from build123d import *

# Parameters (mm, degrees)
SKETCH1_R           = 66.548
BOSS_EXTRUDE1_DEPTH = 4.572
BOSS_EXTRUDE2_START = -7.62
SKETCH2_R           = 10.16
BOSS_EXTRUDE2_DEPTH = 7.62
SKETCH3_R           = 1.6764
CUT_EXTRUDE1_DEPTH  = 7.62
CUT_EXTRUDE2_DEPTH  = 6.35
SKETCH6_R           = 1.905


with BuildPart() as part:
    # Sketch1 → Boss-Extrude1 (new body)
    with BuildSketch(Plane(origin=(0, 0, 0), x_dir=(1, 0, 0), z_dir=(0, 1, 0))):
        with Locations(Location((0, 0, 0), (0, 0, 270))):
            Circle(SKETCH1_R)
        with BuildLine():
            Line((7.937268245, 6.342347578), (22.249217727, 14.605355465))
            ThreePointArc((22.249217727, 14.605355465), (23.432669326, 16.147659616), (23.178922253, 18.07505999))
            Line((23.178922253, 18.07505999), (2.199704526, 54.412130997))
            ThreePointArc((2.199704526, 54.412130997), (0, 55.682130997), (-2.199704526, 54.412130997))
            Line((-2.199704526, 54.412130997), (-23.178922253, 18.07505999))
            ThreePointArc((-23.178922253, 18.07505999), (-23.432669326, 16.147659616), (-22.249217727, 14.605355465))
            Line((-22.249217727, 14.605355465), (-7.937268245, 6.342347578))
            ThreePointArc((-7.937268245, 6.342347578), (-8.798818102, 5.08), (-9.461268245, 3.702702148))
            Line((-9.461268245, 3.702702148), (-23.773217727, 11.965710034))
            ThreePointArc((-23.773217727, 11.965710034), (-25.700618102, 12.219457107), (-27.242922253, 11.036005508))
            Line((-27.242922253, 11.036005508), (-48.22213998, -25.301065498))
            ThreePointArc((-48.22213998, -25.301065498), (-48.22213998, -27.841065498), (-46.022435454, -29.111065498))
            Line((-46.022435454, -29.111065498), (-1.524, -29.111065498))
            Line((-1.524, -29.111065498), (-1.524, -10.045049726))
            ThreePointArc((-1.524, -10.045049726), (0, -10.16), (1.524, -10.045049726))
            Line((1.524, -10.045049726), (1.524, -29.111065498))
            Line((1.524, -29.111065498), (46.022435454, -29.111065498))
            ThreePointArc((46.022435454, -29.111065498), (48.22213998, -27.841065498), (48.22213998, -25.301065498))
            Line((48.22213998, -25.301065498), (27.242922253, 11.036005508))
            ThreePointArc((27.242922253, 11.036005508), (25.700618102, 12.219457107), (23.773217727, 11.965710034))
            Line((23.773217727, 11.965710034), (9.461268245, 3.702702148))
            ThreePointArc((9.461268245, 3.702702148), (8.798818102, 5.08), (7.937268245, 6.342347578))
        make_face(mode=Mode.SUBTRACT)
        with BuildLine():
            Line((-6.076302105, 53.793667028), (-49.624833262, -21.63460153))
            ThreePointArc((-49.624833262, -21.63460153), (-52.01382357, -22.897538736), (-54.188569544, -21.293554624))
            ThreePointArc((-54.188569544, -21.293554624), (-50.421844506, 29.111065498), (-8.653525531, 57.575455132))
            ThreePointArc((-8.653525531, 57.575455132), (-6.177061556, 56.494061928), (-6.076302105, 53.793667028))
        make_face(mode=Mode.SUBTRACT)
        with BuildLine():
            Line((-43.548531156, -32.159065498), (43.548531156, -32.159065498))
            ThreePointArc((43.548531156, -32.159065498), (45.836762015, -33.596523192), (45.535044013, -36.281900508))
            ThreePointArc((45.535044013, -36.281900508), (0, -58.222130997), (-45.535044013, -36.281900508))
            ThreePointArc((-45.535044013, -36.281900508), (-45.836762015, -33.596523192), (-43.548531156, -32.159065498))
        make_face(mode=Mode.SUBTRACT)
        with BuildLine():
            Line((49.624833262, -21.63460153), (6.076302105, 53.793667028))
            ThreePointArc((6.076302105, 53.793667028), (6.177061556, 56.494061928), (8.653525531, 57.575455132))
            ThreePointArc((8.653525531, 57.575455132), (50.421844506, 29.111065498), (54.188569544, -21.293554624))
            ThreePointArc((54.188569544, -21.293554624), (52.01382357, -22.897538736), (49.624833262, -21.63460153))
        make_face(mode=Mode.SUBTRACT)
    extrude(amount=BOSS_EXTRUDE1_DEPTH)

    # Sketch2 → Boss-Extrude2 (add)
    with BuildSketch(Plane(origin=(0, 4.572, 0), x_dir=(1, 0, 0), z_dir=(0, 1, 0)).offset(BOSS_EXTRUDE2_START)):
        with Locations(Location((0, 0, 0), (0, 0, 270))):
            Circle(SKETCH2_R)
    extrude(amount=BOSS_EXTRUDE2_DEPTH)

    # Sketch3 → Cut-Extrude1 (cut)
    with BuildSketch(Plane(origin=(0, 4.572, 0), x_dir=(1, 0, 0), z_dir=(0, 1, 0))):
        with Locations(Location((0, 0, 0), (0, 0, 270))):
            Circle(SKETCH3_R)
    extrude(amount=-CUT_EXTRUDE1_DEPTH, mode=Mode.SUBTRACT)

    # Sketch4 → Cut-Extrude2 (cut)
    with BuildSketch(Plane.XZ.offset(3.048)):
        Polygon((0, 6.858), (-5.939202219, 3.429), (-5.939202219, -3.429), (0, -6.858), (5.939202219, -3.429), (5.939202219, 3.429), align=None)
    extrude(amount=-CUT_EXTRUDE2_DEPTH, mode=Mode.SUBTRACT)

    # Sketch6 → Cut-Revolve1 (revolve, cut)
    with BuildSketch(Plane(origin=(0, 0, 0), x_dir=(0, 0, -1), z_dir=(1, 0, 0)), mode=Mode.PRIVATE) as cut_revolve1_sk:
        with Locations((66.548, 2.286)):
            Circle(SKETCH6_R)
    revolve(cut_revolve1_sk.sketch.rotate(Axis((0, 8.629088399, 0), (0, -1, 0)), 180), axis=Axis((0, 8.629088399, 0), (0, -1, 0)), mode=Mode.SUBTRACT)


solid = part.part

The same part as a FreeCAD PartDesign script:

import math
import FreeCAD as App
import Part
import Sketcher
from FreeCAD import Vector
Q = App.Units.Quantity

doc = App.newDocument("Part")
body = doc.addObject("PartDesign::Body", "Body")

sketch1 = body.newObject("Sketcher::SketchObject", "Sketch")
sketch1.AttachmentSupport = (doc.getObject("XZ_Plane"), [""])
sketch1.MapMode = "FlatFace"
sketch1.addGeometry([
    Part.Circle(Vector(0, 0, 0), Vector(0, 0, 1), 66.5),
    Part.ArcOfCircle(Part.Circle(Vector(-8.3, -55.1, 0), Vector(0, 0, 1), 2.5), math.radians(-99), math.radians(30)),
    Part.LineSegment(Vector(-6.1, -53.8, 0), Vector(-49.6, 21.6, 0)),
    Part.ArcOfCircle(Part.Circle(Vector(-51.8, 20.4, 0), Vector(0, 0, 1), 2.5), math.radians(30), math.radians(159)),
    Part.ArcOfCircle(Part.Circle(Vector(0, 0, 0), Vector(0, 0, 1), 58.2), math.radians(159), math.radians(261)),
    Part.LineSegment(Vector(22.2, -14.6, 0), Vector(7.9, -6.3, 0)),
    Part.ArcOfCircle(Part.Circle(Vector(0, 0, 0), Vector(0, 0, 1), 10.2), math.radians(-38.63), math.radians(-21.37)),
    Part.LineSegment(Vector(9.5, -3.7, 0), Vector(23.8, -12, 0)),
    Part.ArcOfCircle(Part.Circle(Vector(25, -9.8, 0), Vector(0, 0, 1), 2.5), math.radians(-120), math.radians(-30)),
    Part.LineSegment(Vector(27.2, -11, 0), Vector(48.2, 25.3, 0)),
    Part.ArcOfCircle(Part.Circle(Vector(46, 26.6, 0), Vector(0, 0, 1), 2.5), math.radians(-30), math.radians(90)),
    Part.LineSegment(Vector(46, 29.1, 0), Vector(1.5, 29.1, 0)),
    Part.LineSegment(Vector(1.5, 29.1, 0), Vector(1.5, 10, 0)),
    Part.ArcOfCircle(Part.Circle(Vector(0, 0, 0), Vector(0, 0, 1), 10.2), math.radians(81.37), math.radians(98.63)),
    Part.LineSegment(Vector(-1.5, 10, 0), Vector(-1.5, 29.1, 0)),
    Part.LineSegment(Vector(-1.5, 29.1, 0), Vector(-46, 29.1, 0)),
    Part.ArcOfCircle(Part.Circle(Vector(-46, 26.6, 0), Vector(0, 0, 1), 2.5), math.radians(90), math.radians(210)),
    Part.LineSegment(Vector(-48.2, 25.3, 0), Vector(-27.2, -11, 0)),
    Part.ArcOfCircle(Part.Circle(Vector(-25, -9.8, 0), Vector(0, 0, 1), 2.5), math.radians(-150), math.radians(-60)),
    Part.LineSegment(Vector(-23.8, -12, 0), Vector(-9.5, -3.7, 0)),
    Part.ArcOfCircle(Part.Circle(Vector(0, 0, 0), Vector(0, 0, 1), 10.2), math.radians(-158.63), math.radians(-141.37)),
    Part.LineSegment(Vector(-7.9, -6.3, 0), Vector(-22.2, -14.6, 0)),
    Part.ArcOfCircle(Part.Circle(Vector(-21, -16.8, 0), Vector(0, 0, 1), 2.5), math.radians(120), math.radians(210)),
    Part.LineSegment(Vector(-23.2, -18.1, 0), Vector(-2.2, -54.4, 0)),
    Part.ArcOfCircle(Part.Circle(Vector(0, -53.1, 0), Vector(0, 0, 1), 2.5), math.radians(-150), math.radians(-30)),
    Part.LineSegment(Vector(2.2, -54.4, 0), Vector(23.2, -18.1, 0)),
    Part.ArcOfCircle(Part.Circle(Vector(21, -16.8, 0), Vector(0, 0, 1), 2.5), math.radians(-30), math.radians(60)),
    Part.ArcOfCircle(Part.Circle(Vector(51.8, 20.4, 0), Vector(0, 0, 1), 2.5), math.radians(21), math.radians(150)),
    Part.LineSegment(Vector(49.6, 21.6, 0), Vector(6.1, -53.8, 0)),
    Part.ArcOfCircle(Part.Circle(Vector(8.3, -55.1, 0), Vector(0, 0, 1), 2.5), math.radians(150), math.radians(279)),
    Part.ArcOfCircle(Part.Circle(Vector(0, 0, 0), Vector(0, 0, 1), 58.2), math.radians(-81), math.radians(21)),
    Part.ArcOfCircle(Part.Circle(Vector(-43.5, 34.7, 0), Vector(0, 0, 1), 2.5), math.radians(141), math.radians(270)),
    Part.LineSegment(Vector(-43.5, 32.2, 0), Vector(43.5, 32.2, 0)),
    Part.ArcOfCircle(Part.Circle(Vector(43.5, 34.7, 0), Vector(0, 0, 1), 2.5), math.radians(-90), math.radians(39)),
    Part.ArcOfCircle(Part.Circle(Vector(0, 0, 0), Vector(0, 0, 1), 58.2), math.radians(39), math.radians(141)),
], False)
sketch1.addConstraint([
    Sketcher.Constraint("Tangent", 1, 2, 2, 1),
    Sketcher.Constraint("Tangent", 2, 2, 3, 1),
    Sketcher.Constraint("Tangent", 3, 2, 4, 1),
    Sketcher.Constraint("Tangent", 4, 2, 1, 1),
    Sketcher.Constraint("Coincident", 5, 2, 6, 1),
    Sketcher.Constraint("Coincident", 6, 2, 7, 1),
    Sketcher.Constraint("Tangent", 7, 2, 8, 1),
    Sketcher.Constraint("Tangent", 8, 2, 9, 1),
    Sketcher.Constraint("Tangent", 9, 2, 10, 1),
    Sketcher.Constraint("Tangent", 10, 2, 11, 1),
    Sketcher.Constraint("Coincident", 11, 2, 12, 1),
    Sketcher.Constraint("Coincident", 12, 2, 13, 1),
    Sketcher.Constraint("Coincident", 13, 2, 14, 1),
    Sketcher.Constraint("Coincident", 14, 2, 15, 1),
    Sketcher.Constraint("Tangent", 15, 2, 16, 1),
    Sketcher.Constraint("Tangent", 16, 2, 17, 1),
    Sketcher.Constraint("Tangent", 17, 2, 18, 1),
    Sketcher.Constraint("Tangent", 18, 2, 19, 1),
    Sketcher.Constraint("Coincident", 19, 2, 20, 1),
    Sketcher.Constraint("Coincident", 20, 2, 21, 1),
    Sketcher.Constraint("Tangent", 21, 2, 22, 1),
    Sketcher.Constraint("Tangent", 22, 2, 23, 1),
    Sketcher.Constraint("Tangent", 23, 2, 24, 1),
    Sketcher.Constraint("Tangent", 24, 2, 25, 1),
    Sketcher.Constraint("Tangent", 25, 2, 26, 1),
    Sketcher.Constraint("Tangent", 26, 2, 5, 1),
    Sketcher.Constraint("Tangent", 27, 2, 28, 1),
    Sketcher.Constraint("Tangent", 28, 2, 29, 1),
    Sketcher.Constraint("Tangent", 29, 2, 30, 1),
    Sketcher.Constraint("Tangent", 30, 2, 27, 1),
    Sketcher.Constraint("Tangent", 31, 2, 32, 1),
    Sketcher.Constraint("Tangent", 32, 2, 33, 1),
    Sketcher.Constraint("Tangent", 33, 2, 34, 1),
    Sketcher.Constraint("Tangent", 34, 2, 31, 1),
    Sketcher.Constraint("Horizontal", 11),
    Sketcher.Constraint("Vertical", 12),
    Sketcher.Constraint("Vertical", 14),
    Sketcher.Constraint("Horizontal", 15),
    Sketcher.Constraint("Horizontal", 32),
    Sketcher.Constraint("Coincident", 0, 3, -1, 1),
    Sketcher.Constraint("Coincident", 4, 3, -1, 1),
    Sketcher.Constraint("Coincident", 6, 3, -1, 1),
    Sketcher.Constraint("Coincident", 13, 3, -1, 1),
    Sketcher.Constraint("Coincident", 20, 3, -1, 1),
    Sketcher.Constraint("Coincident", 30, 3, -1, 1),
    Sketcher.Constraint("Coincident", 34, 3, -1, 1),
    Sketcher.Constraint("Equal", 1, 3),
    Sketcher.Constraint("Equal", 3, 8),
    Sketcher.Constraint("Equal", 8, 10),
    Sketcher.Constraint("Equal", 6, 13),
    Sketcher.Constraint("Equal", 10, 16),
    Sketcher.Constraint("Equal", 16, 18),
    Sketcher.Constraint("Equal", 13, 20),
    Sketcher.Constraint("Equal", 18, 22),
    Sketcher.Constraint("Equal", 22, 24),
    Sketcher.Constraint("Equal", 24, 26),
    Sketcher.Constraint("Equal", 26, 27),
    Sketcher.Constraint("Equal", 27, 29),
    Sketcher.Constraint("Equal", 4, 30),
    Sketcher.Constraint("Equal", 29, 31),
    Sketcher.Constraint("Equal", 31, 33),
    Sketcher.Constraint("Equal", 30, 34),
    Sketcher.Constraint("Symmetric", 10, 3, 16, 3, -2),
    Sketcher.Constraint("Symmetric", 8, 3, 18, 3, -2),
    Sketcher.Constraint("Symmetric", 22, 3, 26, 3, -2),
    Sketcher.Constraint("Symmetric", 2, 2, 27, 2, -2),
    Sketcher.Constraint("PointOnObject", 24, 3, -2),
    Sketcher.Constraint("Parallel", 5, 7),
    Sketcher.Constraint("Perpendicular", 7, 9),
    Sketcher.Constraint("Parallel", 2, 17),
    Sketcher.Constraint("Perpendicular", 17, 19),
    Sketcher.Constraint("Parallel", 19, 21),
    Sketcher.Constraint("Perpendicular", 21, 23),
    Sketcher.Constraint("Horizontal", 12, 2, 13, 2),
    Sketcher.Constraint("Equal", 5, 7),
    Sketcher.Constraint("Equal", 17, 23),
    Sketcher.Constraint("Radius", 1, Q("0.1 in")),
    Sketcher.Constraint("Radius", 6, Q("0.4 in")),
    Sketcher.Constraint("Diameter", 0, Q("5.24 in")),
    Sketcher.Constraint("Angle", 2, Q("120 deg")),
    Sketcher.Constraint("DistanceX", -1, 1, 11, 2, Q("0.06 in")),
    Sketcher.Constraint("DistanceX", 18, 3, 22, 3, Q("0.16 in")),
    Sketcher.Constraint("DistanceY", 16, 3, 31, 3, Q("0.32 in")),
    Sketcher.Constraint("Radius", 4, Q("58.222131 mm")),
    Sketcher.Constraint("DistanceY", -1, 1, 3, 3, Q("20.364602 mm")),
    Sketcher.Constraint("DistanceY", -1, 1, 33, 2, Q("36.281901 mm")),
    Sketcher.Constraint("DistanceX", 11, 2, 11, 1, Q("44.498435 mm")),
])
pad1 = body.newObject("PartDesign::Pad", "Pad")
pad1.Profile = sketch1
pad1.Length = Q("0.18 in")
pad1.Reversed = True

sketch2 = body.newObject("Sketcher::SketchObject", "Sketch001")
sketch2.AttachmentSupport = (doc.getObject("XZ_Plane"), [""])
sketch2.MapMode = "FlatFace"
sketch2.AttachmentOffset = App.Placement(Vector(0, 0, 0.12 * 25.4), App.Rotation())
sketch2.addGeometry(Part.Circle(Vector(0, 0, 0), Vector(0, 0, 1), 10), False)
sketch2.addConstraint([
    Sketcher.Constraint("Coincident", 0, 3, -1, 1),
    Sketcher.Constraint("Diameter", 0, Q("0.8 in")),
])
pad2 = body.newObject("PartDesign::Pad", "Pad001")
pad2.Profile = sketch2
pad2.Length = Q("0.3 in")
pad2.Reversed = True

sketch3 = body.newObject("Sketcher::SketchObject", "Sketch002")
sketch3.AttachmentSupport = (doc.getObject("XZ_Plane"), [""])
sketch3.MapMode = "FlatFace"
sketch3.AttachmentOffset = App.Placement(Vector(0, 0, -0.18 * 25.4), App.Rotation())
sketch3.addGeometry(Part.Circle(Vector(0, 0, 0), Vector(0, 0, 1), 1.7), False)
sketch3.addConstraint([
    Sketcher.Constraint("Coincident", 0, 3, -1, 1),
    Sketcher.Constraint("Diameter", 0, Q("0.132 in")),
])
pocket1 = body.newObject("PartDesign::Pocket", "Pocket")
pocket1.Profile = sketch3
pocket1.Length = Q("0.3 in")
pocket1.Reversed = True

sketch4 = body.newObject("Sketcher::SketchObject", "Sketch003")
sketch4.AttachmentSupport = (doc.getObject("XZ_Plane"), [""])
sketch4.MapMode = "FlatFace"
sketch4.AttachmentOffset = App.Placement(Vector(0, 0, 0.12 * 25.4), App.Rotation())
sketch4.addGeometry([
    Part.LineSegment(Vector(0, 7, 0), Vector(-6, 3, 0)),
    Part.LineSegment(Vector(-6, 3, 0), Vector(-6, -3, 0)),
    Part.LineSegment(Vector(-6, -3, 0), Vector(0, -7, 0)),
    Part.LineSegment(Vector(0, -7, 0), Vector(6, -3, 0)),
    Part.LineSegment(Vector(6, -3, 0), Vector(6, 3, 0)),
    Part.LineSegment(Vector(6, 3, 0), Vector(0, 7, 0)),
], False)
sketch4.addConstraint([
    Sketcher.Constraint("Coincident", 0, 2, 1, 1),
    Sketcher.Constraint("Coincident", 1, 2, 2, 1),
    Sketcher.Constraint("Coincident", 2, 2, 3, 1),
    Sketcher.Constraint("Coincident", 3, 2, 4, 1),
    Sketcher.Constraint("Coincident", 4, 2, 5, 1),
    Sketcher.Constraint("Coincident", 5, 2, 0, 1),
    Sketcher.Constraint("Vertical", 1),
    Sketcher.Constraint("Vertical", 4),
    Sketcher.Constraint("Symmetric", 0, 2, 3, 2, -1, 1),
    Sketcher.Constraint("Symmetric", 2, 2, 5, 2, -1, 1),
    Sketcher.Constraint("PointOnObject", 2, 2, -2),
    Sketcher.Constraint("Parallel", 2, 5),
    Sketcher.Constraint("Horizontal", 1, 2, 3, 2),
    Sketcher.Constraint("Angle", 0, Q("-150 deg")),
    Sketcher.Constraint("DistanceY", 1, 2, 1, 1, Q("0.27 in")),
    Sketcher.Constraint("Distance", 0, Q("0.27 in")),
])
pocket2 = body.newObject("PartDesign::Pocket", "Pocket001")
pocket2.Profile = sketch4
pocket2.Length = Q("0.25 in")

sketch5 = body.newObject("Sketcher::SketchObject", "Sketch004")
sketch5.AttachmentSupport = (doc.getObject("YZ_Plane"), [""])
sketch5.MapMode = "FlatFace"
sketch5.addGeometry(Part.Circle(Vector(2.3, -66.5, 0), Vector(0, 0, 1), 1.9), False)
sketch5.addConstraint([
    Sketcher.Constraint("Diameter", 0, Q("0.15 in")),
    Sketcher.Constraint("DistanceX", -1, 1, 0, 3, Q("0.09 in")),
    Sketcher.Constraint("DistanceY", 0, 3, -1, 1, Q("2.62 in")),
])
groove = body.newObject("PartDesign::Groove", "Groove")
groove.Profile = sketch5
groove.ReferenceAxis = (sketch5, ["H_Axis"])
groove.Angle = 360

doc.recompute()
